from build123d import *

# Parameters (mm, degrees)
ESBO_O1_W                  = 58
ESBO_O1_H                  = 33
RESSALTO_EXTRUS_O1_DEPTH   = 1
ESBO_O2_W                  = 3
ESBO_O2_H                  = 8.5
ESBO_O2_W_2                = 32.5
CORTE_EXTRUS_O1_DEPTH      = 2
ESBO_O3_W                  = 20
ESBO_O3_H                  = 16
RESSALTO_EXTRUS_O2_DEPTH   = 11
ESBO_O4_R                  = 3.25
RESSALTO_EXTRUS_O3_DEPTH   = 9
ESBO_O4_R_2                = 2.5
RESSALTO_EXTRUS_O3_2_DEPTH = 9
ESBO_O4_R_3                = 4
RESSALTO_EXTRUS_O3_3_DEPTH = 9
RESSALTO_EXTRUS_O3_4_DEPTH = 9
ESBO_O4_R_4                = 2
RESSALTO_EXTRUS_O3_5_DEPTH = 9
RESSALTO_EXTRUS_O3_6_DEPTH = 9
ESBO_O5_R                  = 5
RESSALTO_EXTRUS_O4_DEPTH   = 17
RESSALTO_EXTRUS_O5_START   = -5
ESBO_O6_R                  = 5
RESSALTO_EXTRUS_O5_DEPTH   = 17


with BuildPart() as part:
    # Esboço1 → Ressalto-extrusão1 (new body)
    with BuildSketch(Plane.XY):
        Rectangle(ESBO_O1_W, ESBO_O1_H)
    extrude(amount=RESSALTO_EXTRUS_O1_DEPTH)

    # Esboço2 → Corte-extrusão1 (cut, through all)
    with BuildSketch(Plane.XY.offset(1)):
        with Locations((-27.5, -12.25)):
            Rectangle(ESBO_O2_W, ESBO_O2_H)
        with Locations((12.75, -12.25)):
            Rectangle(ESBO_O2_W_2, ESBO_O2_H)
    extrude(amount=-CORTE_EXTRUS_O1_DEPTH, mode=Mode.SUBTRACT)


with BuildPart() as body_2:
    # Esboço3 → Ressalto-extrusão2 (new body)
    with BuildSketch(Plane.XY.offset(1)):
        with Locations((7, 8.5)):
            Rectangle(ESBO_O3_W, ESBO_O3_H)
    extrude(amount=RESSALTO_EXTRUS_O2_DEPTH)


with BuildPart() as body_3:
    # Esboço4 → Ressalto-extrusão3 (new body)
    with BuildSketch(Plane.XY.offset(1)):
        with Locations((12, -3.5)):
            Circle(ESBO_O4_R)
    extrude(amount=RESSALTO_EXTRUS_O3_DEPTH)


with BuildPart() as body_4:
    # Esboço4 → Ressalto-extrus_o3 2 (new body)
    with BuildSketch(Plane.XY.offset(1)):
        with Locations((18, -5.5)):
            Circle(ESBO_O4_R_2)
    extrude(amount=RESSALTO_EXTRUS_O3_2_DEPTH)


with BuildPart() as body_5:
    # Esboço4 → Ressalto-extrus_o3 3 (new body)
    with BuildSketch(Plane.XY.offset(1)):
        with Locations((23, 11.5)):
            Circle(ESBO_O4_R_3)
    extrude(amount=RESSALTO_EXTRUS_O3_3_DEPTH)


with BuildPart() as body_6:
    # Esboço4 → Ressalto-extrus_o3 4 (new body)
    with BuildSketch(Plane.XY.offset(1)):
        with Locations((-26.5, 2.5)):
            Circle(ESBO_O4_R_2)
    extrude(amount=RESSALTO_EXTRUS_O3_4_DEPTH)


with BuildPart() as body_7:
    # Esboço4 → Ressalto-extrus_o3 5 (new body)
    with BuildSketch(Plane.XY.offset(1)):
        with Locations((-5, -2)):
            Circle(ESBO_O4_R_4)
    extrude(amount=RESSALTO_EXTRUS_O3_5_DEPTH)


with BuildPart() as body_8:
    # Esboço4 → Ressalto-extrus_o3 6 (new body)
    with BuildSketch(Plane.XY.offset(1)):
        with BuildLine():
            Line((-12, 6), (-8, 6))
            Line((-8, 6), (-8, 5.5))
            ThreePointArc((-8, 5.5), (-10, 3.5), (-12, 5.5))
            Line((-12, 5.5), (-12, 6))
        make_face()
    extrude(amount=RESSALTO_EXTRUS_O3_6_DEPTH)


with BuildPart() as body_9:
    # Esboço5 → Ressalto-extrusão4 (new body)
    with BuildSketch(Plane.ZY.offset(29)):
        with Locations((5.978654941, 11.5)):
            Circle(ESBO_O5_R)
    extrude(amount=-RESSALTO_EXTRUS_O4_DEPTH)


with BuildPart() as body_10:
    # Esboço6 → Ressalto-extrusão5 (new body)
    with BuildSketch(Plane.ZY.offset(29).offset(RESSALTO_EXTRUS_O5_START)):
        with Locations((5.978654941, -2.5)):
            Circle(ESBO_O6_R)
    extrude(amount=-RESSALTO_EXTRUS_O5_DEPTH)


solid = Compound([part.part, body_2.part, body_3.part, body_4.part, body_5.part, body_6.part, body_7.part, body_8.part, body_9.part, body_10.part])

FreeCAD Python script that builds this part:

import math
import FreeCAD as App
import Part
import Sketcher

V = App.Vector
Q = App.Units.Quantity


def add_polygon(sketch, points):
    """Adds a closed chain of lines whose ends are joined by coincident constraints."""
    first, n = sketch.GeometryCount, len(points)
    for a, b in zip(points, points[1:] + points[:1]):
        sketch.addGeometry(Part.LineSegment(App.Vector(*a, 0), App.Vector(*b, 0)), False)
    for i in range(n):
        sketch.addConstraint(Sketcher.Constraint("Coincident", first + i, 2, first + (i + 1) % n, 1))

doc = App.newDocument("Part")
body = doc.addObject("PartDesign::Body", "Body")

# Sketch on XY plane
sketch1 = body.newObject("Sketcher::SketchObject", "Sketch")
sketch1.AttachmentSupport = (doc.getObject("XY_Plane"), [""])
sketch1.MapMode = "FlatFace"
add_polygon(sketch1, [(-29, 16), (-29, -16), (29, -16), (29, 16)])  # lines 0-3
sketch1.addConstraint([
    Sketcher.Constraint("Vertical", 0),
    Sketcher.Constraint("Horizontal", 1),
    Sketcher.Constraint("Vertical", 2),
    Sketcher.Constraint("Horizontal", 3),
    Sketcher.Constraint("Symmetric", 0, 2, 2, 2, -1, 1),
    Sketcher.Constraint("DistanceX", 1, 1, 1, 2, Q("58 mm")),
    Sketcher.Constraint("DistanceY", 0, 2, 0, 1, Q("33 mm")),
])
pad1 = body.newObject("PartDesign::Pad", "Pad")
pad1.Profile = sketch1
pad1.Length = 1

# Sketch on XY plane
sketch2 = body.newObject("Sketcher::SketchObject", "Sketch001")
sketch2.AttachmentSupport = (doc.getObject("XY_Plane"), [""])
sketch2.MapMode = "FlatFace"
sketch2.AttachmentOffset = App.Placement(V(0, 0, 1), App.Rotation())
add_polygon(sketch2, [(-29, -8), (-29, -16.5), (-26, -16.5), (-26, -8)])  # lines 0-3
add_polygon(sketch2, [(-3.5, -8), (-3.5, -16.5), (29, -16.5), (29, -8)])  # lines 4-7
sketch2.addConstraint([
    Sketcher.Constraint("Vertical", 0),
    Sketcher.Constraint("Horizontal", 1),
    Sketcher.Constraint("Vertical", 2),
    Sketcher.Constraint("Horizontal", 3),
    Sketcher.Constraint("Vertical", 4),
    Sketcher.Constraint("Horizontal", 5),
    Sketcher.Constraint("Vertical", 6),
    Sketcher.Constraint("Horizontal", 7),
    Sketcher.Constraint("Symmetric", 0, 2, 5, 2, -2),
    Sketcher.Constraint("Horizontal", 3, 2, 6, 2),
    Sketcher.Constraint("DistanceX", 1, 1, 1, 2, Q("3 mm")),
    Sketcher.Constraint("DistanceX", 5, 1, 5, 2, Q("32.5 mm")),
    Sketcher.Constraint("DistanceY", 0, 2, 0, 1, Q("8.5 mm")),
    Sketcher.Constraint("DistanceX", 0, 2, -1, 1, Q("29 mm")),
    Sketcher.Constraint("DistanceY", 2, 2, -1, 1, Q("8 mm")),
])
pocket1 = body.newObject("PartDesign::Pocket", "Pocket")
pocket1.Profile = sketch2
pocket1.Type = "ThroughAll"
body2 = doc.addObject("PartDesign::Body", "Body001")

# Sketch on XY plane
sketch3 = body2.newObject("Sketcher::SketchObject", "Sketch002")
sketch3.AttachmentSupport = (doc.getObject("XY_Plane001"), [""])
sketch3.MapMode = "FlatFace"
sketch3.AttachmentOffset = App.Placement(V(0, 0, 1), App.Rotation())
add_polygon(sketch3, [(-3, 16), (-3, 0), (17, 0), (17, 16)])  # lines 0-3
sketch3.addConstraint([
    Sketcher.Constraint("Vertical", 0),
    Sketcher.Constraint("Horizontal", 1),
    Sketcher.Constraint("Vertical", 2),
    Sketcher.Constraint("Horizontal", 3),
    Sketcher.Constraint("DistanceX", 1, 1, 1, 2, Q("20 mm")),
    Sketcher.Constraint("DistanceY", 0, 2, 0, 1, Q("16 mm")),
    Sketcher.Constraint("DistanceX", 0, 2, -1, 1, Q("3 mm")),
    Sketcher.Constraint("DistanceY", -1, 1, 0, 2, Q("0.5 mm")),
])
pad2 = body2.newObject("PartDesign::Pad", "Pad001")
pad2.Profile = sketch3
pad2.Length = 11
body3 = doc.addObject("PartDesign::Body", "Body002")

# Sketch on XY plane
sketch4 = body3.newObject("Sketcher::SketchObject", "Sketch003")
sketch4.AttachmentSupport = (doc.getObject("XY_Plane002"), [""])
sketch4.MapMode = "FlatFace"
sketch4.AttachmentOffset = App.Placement(V(0, 0, 1), App.Rotation())
sketch4.addGeometry(Part.Circle(V(12, -3.5, 0), V(0, 0, 1), 3.2), False)
sketch4.addConstraint([
    Sketcher.Constraint("Diameter", 0, Q("6.5 mm")),
    Sketcher.Constraint("DistanceX", -1, 1, 0, 3, Q("12 mm")),
    Sketcher.Constraint("DistanceY", 0, 3, -1, 1, Q("3.5 mm")),
])
pad3 = body3.newObject("PartDesign::Pad", "Pad002")
pad3.Profile = sketch4
pad3.Length = 9
body4 = doc.addObject("PartDesign::Body", "Body003")

# Sketch on XY plane
sketch5 = body4.newObject("Sketcher::SketchObject", "Sketch004")
sketch5.AttachmentSupport = (doc.getObject("XY_Plane003"), [""])
sketch5.MapMode = "FlatFace"
sketch5.AttachmentOffset = App.Placement(V(0, 0, 1), App.Rotation())
sketch5.addGeometry(Part.Circle(V(18, -5.5, 0), V(0, 0, 1), 2.5), False)
sketch5.addConstraint([
    Sketcher.Constraint("Diameter", 0, Q("5 mm")),
    Sketcher.Constraint("DistanceX", -1, 1, 0, 3, Q("18 mm")),
    Sketcher.Constraint("DistanceY", 0, 3, -1, 1, Q("5.5 mm")),
])
pad4 = body4.newObject("PartDesign::Pad", "Pad003")
pad4.Profile = sketch5
pad4.Length = 9
body5 = doc.addObject("PartDesign::Body", "Body004")

# Sketch on XY plane
sketch6 = body5.newObject("Sketcher::SketchObject", "Sketch005")
sketch6.AttachmentSupport = (doc.getObject("XY_Plane004"), [""])
sketch6.MapMode = "FlatFace"
sketch6.AttachmentOffset = App.Placement(V(0, 0, 1), App.Rotation())
sketch6.addGeometry(Part.Circle(V(23, 11.5, 0), V(0, 0, 1), 4), False)
sketch6.addConstraint([
    Sketcher.Constraint("Diameter", 0, Q("8 mm")),
    Sketcher.Constraint("DistanceX", -1, 1, 0, 3, Q("23 mm")),
    Sketcher.Constraint("DistanceY", -1, 1, 0, 3, Q("11.5 mm")),
])
pad5 = body5.newObject("PartDesign::Pad", "Pad004")
pad5.Profile = sketch6
pad5.Length = 9
body6 = doc.addObject("PartDesign::Body", "Body005")

# Sketch on XY plane
sketch7 = body6.newObject("Sketcher::SketchObject", "Sketch006")
sketch7.AttachmentSupport = (doc.getObject("XY_Plane005"), [""])
sketch7.MapMode = "FlatFace"
sketch7.AttachmentOffset = App.Placement(V(0, 0, 1), App.Rotation())
sketch7.addGeometry(Part.Circle(V(-26.5, 2.5, 0), V(0, 0, 1), 2.5), False)
sketch7.addConstraint([
    Sketcher.Constraint("Diameter", 0, Q("5 mm")),
    Sketcher.Constraint("DistanceX", 0, 3, -1, 1, Q("26.5 mm")),
    Sketcher.Constraint("DistanceY", -1, 1, 0, 3, Q("2.5 mm")),
])
pad6 = body6.newObject("PartDesign::Pad", "Pad005")
pad6.Profile = sketch7
pad6.Length = 9
body7 = doc.addObject("PartDesign::Body", "Body006")

# Sketch on XY plane
sketch8 = body7.newObject("Sketcher::SketchObject", "Sketch007")
sketch8.AttachmentSupport = (doc.getObject("XY_Plane006"), [""])
sketch8.MapMode = "FlatFace"
sketch8.AttachmentOffset = App.Placement(V(0, 0, 1), App.Rotation())
sketch8.addGeometry(Part.Circle(V(-5, -2, 0), V(0, 0, 1), 2), False)
sketch8.addConstraint([
    Sketcher.Constraint("Diameter", 0, Q("4 mm")),
    Sketcher.Constraint("DistanceX", 0, 3, -1, 1, Q("5 mm")),
    Sketcher.Constraint("DistanceY", 0, 3, -1, 1, Q("2 mm")),
])
pad7 = body7.newObject("PartDesign::Pad", "Pad006")
pad7.Profile = sketch8
pad7.Length = 9
body8 = doc.addObject("PartDesign::Body", "Body007")

# Sketch on XY plane
sketch9 = body8.newObject("Sketcher::SketchObject", "Sketch008")
sketch9.AttachmentSupport = (doc.getObject("XY_Plane007"), [""])
sketch9.MapMode = "FlatFace"
sketch9.AttachmentOffset = App.Placement(V(0, 0, 1), App.Rotation())
sketch9.addGeometry([
    Part.LineSegment(V(-8, 6, 0), V(-12, 6, 0)),
    Part.LineSegment(V(-12, 6, 0), V(-12, 5.5, 0)),
    Part.ArcOfCircle(Part.Circle(V(-10, 5.5, 0), V(0, 0, 1), 2), math.radians(180), math.radians(360)),
    Part.LineSegment(V(-8, 5.5, 0), V(-8, 6, 0)),
], False)
sketch9.addConstraint([
    Sketcher.Constraint("Coincident", 0, 2, 1, 1),
    Sketcher.Constraint("Tangent", 1, 2, 2, 1),
    Sketcher.Constraint("Tangent", 2, 2, 3, 1),
    Sketcher.Constraint("Coincident", 3, 2, 0, 1),
    Sketcher.Constraint("Horizontal", 0),
    Sketcher.Constraint("Vertical", 1),
    Sketcher.Constraint("Vertical", 3),
    Sketcher.Constraint("Radius", 2, Q("2 mm")),
    Sketcher.Constraint("DistanceY", 1, 2, 1, 1, Q("0.5 mm")),
    Sketcher.Constraint("DistanceX", 2, 3, -1, 1, Q("10 mm")),
    Sketcher.Constraint("DistanceY", -1, 1, 0, 2, Q("6 mm")),
])
pad8 = body8.newObject("PartDesign::Pad", "Pad007")
pad8.Profile = sketch9
pad8.Length = 9
body9 = doc.addObject("PartDesign::Body", "Body008")

# Sketch on YZ plane
sketch10 = body9.newObject("Sketcher::SketchObject", "Sketch009")
sketch10.AttachmentSupport = (doc.getObject("YZ_Plane008"), [""])
sketch10.MapMode = "FlatFace"
sketch10.AttachmentOffset = App.Placement(V(0, 0, -29), App.Rotation())
sketch10.addGeometry(Part.Circle(V(12, 6, 0), V(0, 0, 1), 5), False)
sketch10.addConstraint([
    Sketcher.Constraint("Diameter", 0, Q("10 mm")),
    Sketcher.Constraint("DistanceX", -1, 1, 0, 3, Q("11.5 mm")),
    Sketcher.Constraint("DistanceY", -1, 1, 0, 3, Q("5.978655 mm")),
])
pad9 = body9.newObject("PartDesign::Pad", "Pad008")
pad9.Profile = sketch10
pad9.Length = 17
body10 = doc.addObject("PartDesign::Body", "Body009")

# Sketch on YZ plane
sketch11 = body10.newObject("Sketcher::SketchObject", "Sketch010")
sketch11.AttachmentSupport = (doc.getObject("YZ_Plane009"), [""])
sketch11.MapMode = "FlatFace"
sketch11.AttachmentOffset = App.Placement(V(0, 0, -24), App.Rotation())
sketch11.addGeometry(Part.Circle(V(-2, 6, 0), V(0, 0, 1), 5), False)
sketch11.addConstraint([
    Sketcher.Constraint("Diameter", 0, Q("10 mm")),
    Sketcher.Constraint("DistanceX", 0, 3, -1, 1, Q("2.5 mm")),
    Sketcher.Constraint("DistanceY", -1, 1, 0, 3, Q("5.978655 mm")),
])
pad10 = body10.newObject("PartDesign::Pad", "Pad009")
pad10.Profile = sketch11
pad10.Length = 17

doc.recompute()
